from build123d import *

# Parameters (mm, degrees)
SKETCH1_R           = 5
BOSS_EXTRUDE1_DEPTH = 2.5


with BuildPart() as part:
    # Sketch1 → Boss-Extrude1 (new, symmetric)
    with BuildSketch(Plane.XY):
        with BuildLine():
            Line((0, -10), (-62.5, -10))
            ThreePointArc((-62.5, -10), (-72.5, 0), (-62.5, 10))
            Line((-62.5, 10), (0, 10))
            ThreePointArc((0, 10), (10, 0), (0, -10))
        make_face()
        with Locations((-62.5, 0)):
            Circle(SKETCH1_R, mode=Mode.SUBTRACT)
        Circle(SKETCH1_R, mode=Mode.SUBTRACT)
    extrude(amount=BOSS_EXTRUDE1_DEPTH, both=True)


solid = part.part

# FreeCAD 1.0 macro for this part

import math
import FreeCAD as App
import Part
import Sketcher
from FreeCAD import Vector
Q = App.Units.Quantity

doc = App.newDocument("Part")
body = doc.addObject("PartDesign::Body", "Body")

sketch1 = body.newObject("Sketcher::SketchObject", "Sketch")
sketch1.AttachmentSupport = (doc.getObject("XY_Plane"), [""])
sketch1.MapMode = "FlatFace"
sketch1.addGeometry(Part.LineSegment(Vector(-62, -10, 0), Vector(0, -10, 0)), False)
sketch1.addGeometry(Part.ArcOfCircle(Part.Circle(Vector(0, 0, 0), Vector(0, 0, 1), 10), math.radians(-90), math.radians(90)), False)
sketch1.addGeometry(Part.LineSegment(Vector(0, 10, 0), Vector(-62, 10, 0)), False)
sketch1.addGeometry(Part.ArcOfCircle(Part.Circle(Vector(-62, 0, 0), Vector(0, 0, 1), 10), math.radians(90), math.radians(270)), False)
sketch1.addGeometry(Part.Circle(Vector(0, 0, 0), Vector(0, 0, 1), 5), False)
sketch1.addGeometry(Part.Circle(Vector(-62, 0, 0), Vector(0, 0, 1), 5), False)
sketch1.addConstraint(Sketcher.Constraint("Tangent", 0, 2, 1, 1))
sketch1.addConstraint(Sketcher.Constraint("Tangent", 1, 2, 2, 1))
sketch1.addConstraint(Sketcher.Constraint("Tangent", 2, 2, 3, 1))
sketch1.addConstraint(Sketcher.Constraint("Tangent", 3, 2, 0, 1))
sketch1.addConstraint(Sketcher.Constraint("Horizontal", 0))
sketch1.addConstraint(Sketcher.Constraint("Horizontal", 2))
sketch1.addConstraint(Sketcher.Constraint("Coincident", 1, 3, -1, 1))
sketch1.addConstraint(Sketcher.Constraint("Coincident", 4, 3, -1, 1))
sketch1.addConstraint(Sketcher.Constraint("Coincident", 5, 3, 3, 3))
sketch1.addConstraint(Sketcher.Constraint("Equal", 4, 5))
sketch1.addConstraint(Sketcher.Constraint("Diameter", 4, Q("10 mm")))
sketch1.addConstraint(Sketcher.Constraint("Radius", 1, Q("10 mm")))
sketch1.addConstraint(Sketcher.Constraint("DistanceX", 0, 1, 0, 2, Q("62.5 mm")))
pad1 = body.newObject("PartDesign::Pad", "Pad")
pad1.Profile = sketch1
pad1.Length = 5
pad1.Midplane = True

doc.recompute()
